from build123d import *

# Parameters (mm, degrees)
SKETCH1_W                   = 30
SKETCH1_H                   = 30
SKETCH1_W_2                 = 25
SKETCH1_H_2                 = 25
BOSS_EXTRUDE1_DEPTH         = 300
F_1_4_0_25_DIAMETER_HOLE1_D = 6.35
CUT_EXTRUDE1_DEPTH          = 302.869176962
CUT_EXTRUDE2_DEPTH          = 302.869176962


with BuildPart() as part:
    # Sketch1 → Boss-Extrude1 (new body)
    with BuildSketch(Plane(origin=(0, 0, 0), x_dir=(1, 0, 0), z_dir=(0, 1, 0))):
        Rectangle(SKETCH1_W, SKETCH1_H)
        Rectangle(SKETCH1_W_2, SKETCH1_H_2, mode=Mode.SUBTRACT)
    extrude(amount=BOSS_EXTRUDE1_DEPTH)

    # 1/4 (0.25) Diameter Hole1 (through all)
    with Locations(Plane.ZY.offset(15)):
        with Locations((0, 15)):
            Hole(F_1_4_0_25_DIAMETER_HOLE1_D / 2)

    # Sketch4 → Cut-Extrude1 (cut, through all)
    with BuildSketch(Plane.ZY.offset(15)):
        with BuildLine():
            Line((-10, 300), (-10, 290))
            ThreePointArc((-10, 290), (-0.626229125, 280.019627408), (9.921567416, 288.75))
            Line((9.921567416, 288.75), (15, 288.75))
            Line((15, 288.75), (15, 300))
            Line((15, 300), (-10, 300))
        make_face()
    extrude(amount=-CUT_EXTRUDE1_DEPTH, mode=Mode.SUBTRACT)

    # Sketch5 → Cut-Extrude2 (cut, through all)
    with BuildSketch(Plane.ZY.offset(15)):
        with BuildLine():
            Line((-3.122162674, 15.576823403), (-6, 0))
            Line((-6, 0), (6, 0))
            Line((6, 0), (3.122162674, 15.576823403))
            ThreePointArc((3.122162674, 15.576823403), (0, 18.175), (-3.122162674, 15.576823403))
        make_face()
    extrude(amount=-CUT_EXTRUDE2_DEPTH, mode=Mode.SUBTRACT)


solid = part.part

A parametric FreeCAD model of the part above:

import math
import FreeCAD as App
import Part
import Sketcher
from FreeCAD import Vector
Q = App.Units.Quantity

doc = App.newDocument("Part")
params = doc.addObject("Spreadsheet::Sheet", "Params")
for row, (alias, value) in enumerate([
    ("sketch1_width", "30 mm"),
    ("sketch1_width2", "25 mm"),
    ("pad1_length", "300 mm"),
    ("sketch2_diameter", "6.35 mm"),
    ("hole_diameter", "6.35 mm"),
    ("sketch3_radius", "10 mm"),
    ("sketch3_width", "10 mm"),
    ("sketch3_height", "25 mm"),
    ("sketch3_width2", "11.25 mm"),
    ("sketch4_height", "12 mm"),
], start=1):
    params.set(f"A{row}", alias)
    params.set(f"B{row}", "=" + value)
    params.setAlias(f"B{row}", alias)

body = doc.addObject("PartDesign::Body", "Body")

sketch1 = body.newObject("Sketcher::SketchObject", "Sketch")
sketch1.AttachmentSupport = (doc.getObject("XZ_Plane"), [""])
sketch1.MapMode = "FlatFace"
sketch1.addGeometry([
    Part.LineSegment(Vector(-15, -15, 0), Vector(-15, 15, 0)),
    Part.LineSegment(Vector(-15, 15, 0), Vector(15, 15, 0)),
    Part.LineSegment(Vector(15, 15, 0), Vector(15, -15, 0)),
    Part.LineSegment(Vector(15, -15, 0), Vector(-15, -15, 0)),
    Part.LineSegment(Vector(12.5, 12.5, 0), Vector(-12.5, 12.5, 0)),
    Part.LineSegment(Vector(-12.5, 12.5, 0), Vector(-12.5, -12.5, 0)),
    Part.LineSegment(Vector(-12.5, -12.5, 0), Vector(12.5, -12.5, 0)),
    Part.LineSegment(Vector(12.5, -12.5, 0), Vector(12.5, 12.5, 0)),
], False)
sketch1.addConstraint([
    Sketcher.Constraint("Coincident", 0, 2, 1, 1),
    Sketcher.Constraint("Coincident", 1, 2, 2, 1),
    Sketcher.Constraint("Coincident", 2, 2, 3, 1),
    Sketcher.Constraint("Coincident", 3, 2, 0, 1),
    Sketcher.Constraint("Coincident", 4, 2, 5, 1),
    Sketcher.Constraint("Coincident", 5, 2, 6, 1),
    Sketcher.Constraint("Coincident", 6, 2, 7, 1),
    Sketcher.Constraint("Coincident", 7, 2, 4, 1),
    Sketcher.Constraint("Vertical", 0),
    Sketcher.Constraint("Horizontal", 1),
    Sketcher.Constraint("Vertical", 2),
    Sketcher.Constraint("Horizontal", 3),
    Sketcher.Constraint("Horizontal", 4),
    Sketcher.Constraint("Vertical", 5),
    Sketcher.Constraint("Horizontal", 6),
    Sketcher.Constraint("Vertical", 7),
    Sketcher.Constraint("Symmetric", 0, 2, 2, 2, -1, 1),
    Sketcher.Constraint("Symmetric", 4, 2, 6, 2, -1, 1),
    Sketcher.Constraint("Equal", 3, 0),
    Sketcher.Constraint("Equal", 6, 5),
    Sketcher.Constraint("DistanceX", 1, 1, 1, 2, Q("30 mm")),
    Sketcher.Constraint("DistanceX", 4, 2, 4, 1, Q("25 mm")),
])
sketch1.setExpression("Constraints[20]", "Params.sketch1_width")
sketch1.setExpression("Constraints[21]", "Params.sketch1_width2")
pad1 = body.newObject("PartDesign::Pad", "Pad")
pad1.Profile = sketch1
pad1.setExpression("Length", "Params.pad1_length")
pad1.Reversed = True

sketch2 = body.newObject("Sketcher::SketchObject", "Sketch001")
sketch2.AttachmentSupport = (doc.getObject("YZ_Plane"), [""])
sketch2.MapMode = "FlatFace"
sketch2.AttachmentOffset = App.Placement(Vector(0, 0, -15), App.Rotation())
sketch2.addGeometry(Part.Circle(Vector(15, 0, 0), Vector(0, 0, 1), 3.175), False)
sketch2.addConstraint([
    Sketcher.Constraint("PointOnObject", 0, 3, -1),
    Sketcher.Constraint("Diameter", 0, Q("6.35 mm")),
    Sketcher.Constraint("DistanceX", -1, 1, 0, 3, Q("15 mm")),
])
sketch2.setExpression("Constraints[1]", "Params.sketch2_diameter")
doc.recompute()
hole = body.newObject("PartDesign::Hole", "Hole")
hole.Profile = sketch2
hole.ThreadType = "None"
hole.setExpression("Diameter", "Params.hole_diameter")
hole.DepthType = "ThroughAll"
hole.Reversed = True

sketch3 = body.newObject("Sketcher::SketchObject", "Sketch002")
sketch3.AttachmentSupport = (doc.getObject("YZ_Plane"), [""])
sketch3.MapMode = "FlatFace"
sketch3.AttachmentOffset = App.Placement(Vector(0, 0, -15), App.Rotation())
sketch3.addGeometry([
    Part.LineSegment(Vector(300, -10, 0), Vector(290, -10, 0)),
    Part.ArcOfCircle(Part.Circle(Vector(290, 0, 0), Vector(0, 0, 1), 10), math.radians(97.180756), math.radians(270)),
    Part.LineSegment(Vector(288.75, 9.921567, 0), Vector(288.75, 15, 0)),
    Part.LineSegment(Vector(288.75, 15, 0), Vector(300, 15, 0)),
    Part.LineSegment(Vector(300, 15, 0), Vector(300, -10, 0)),
], False)
sketch3.addConstraint([
    Sketcher.Constraint("Tangent", 0, 2, 1, 2),
    Sketcher.Constraint("Coincident", 1, 1, 2, 1),
    Sketcher.Constraint("Coincident", 2, 2, 3, 1),
    Sketcher.Constraint("Coincident", 3, 2, 4, 1),
    Sketcher.Constraint("Coincident", 4, 2, 0, 1),
    Sketcher.Constraint("Horizontal", 0),
    Sketcher.Constraint("Vertical", 2),
    Sketcher.Constraint("Horizontal", 3),
    Sketcher.Constraint("Vertical", 4),
    Sketcher.Constraint("PointOnObject", 1, 3, -1),
    Sketcher.Constraint("Radius", 1, Q("10 mm")),
    Sketcher.Constraint("DistanceX", 0, 2, 0, 1, Q("10 mm")),
    Sketcher.Constraint("DistanceY", 4, 2, 4, 1, Q("25 mm")),
    Sketcher.Constraint("DistanceX", -1, 1, 1, 3, Q("290 mm")),
    Sketcher.Constraint("DistanceX", 3, 1, 3, 2, Q("11.25 mm")),
])
sketch3.setExpression("Constraints[10]", "Params.sketch3_radius")
sketch3.setExpression("Constraints[11]", "Params.sketch3_width")
sketch3.setExpression("Constraints[12]", "Params.sketch3_height")
sketch3.setExpression("Constraints[14]", "Params.sketch3_width2")
pocket1 = body.newObject("PartDesign::Pocket", "Pocket")
pocket1.Profile = sketch3
pocket1.Type = "ThroughAll"
pocket1.Reversed = True

sketch4 = body.newObject("Sketcher::SketchObject", "Sketch003")
sketch4.AttachmentSupport = (doc.getObject("YZ_Plane"), [""])
sketch4.MapMode = "FlatFace"
sketch4.AttachmentOffset = App.Placement(Vector(0, 0, -15), App.Rotation())
sketch4.addGeometry([
    Part.LineSegment(Vector(15.576823, -3.122163, 0), Vector(0, -6, 0)),
    Part.LineSegment(Vector(0, -6, 0), Vector(0, 6, 0)),
    Part.LineSegment(Vector(0, 6, 0), Vector(15.576823, 3.122163, 0)),
    Part.ArcOfCircle(Part.Circle(Vector(15, 0, 0), Vector(0, 0, 1), 3.175), math.radians(-79.532564), math.radians(79.532564)),
], False)
sketch4.addConstraint([
    Sketcher.Constraint("Coincident", 0, 2, 1, 1),
    Sketcher.Constraint("Coincident", 1, 2, 2, 1),
    Sketcher.Constraint("Tangent", 2, 2, 3, 2),
    Sketcher.Constraint("Tangent", 3, 1, 0, 1),
    Sketcher.Constraint("Vertical", 1),
    Sketcher.Constraint("Symmetric", 0, 2, 1, 2, -1, 1),
    Sketcher.Constraint("PointOnObject", 3, 3, -1),
    Sketcher.Constraint("DistanceY", 1, 1, 1, 2, Q("12 mm")),
    Sketcher.Constraint("DistanceX", -1, 1, 3, 3, Q("15 mm")),
    Sketcher.Constraint("Radius", 3, Q("3.175 mm")),
])
sketch4.setExpression("Constraints[7]", "Params.sketch4_height")
pocket2 = body.newObject("PartDesign::Pocket", "Pocket001")
pocket2.Profile = sketch4
pocket2.Type = "ThroughAll"
pocket2.Reversed = True

doc.recompute()
